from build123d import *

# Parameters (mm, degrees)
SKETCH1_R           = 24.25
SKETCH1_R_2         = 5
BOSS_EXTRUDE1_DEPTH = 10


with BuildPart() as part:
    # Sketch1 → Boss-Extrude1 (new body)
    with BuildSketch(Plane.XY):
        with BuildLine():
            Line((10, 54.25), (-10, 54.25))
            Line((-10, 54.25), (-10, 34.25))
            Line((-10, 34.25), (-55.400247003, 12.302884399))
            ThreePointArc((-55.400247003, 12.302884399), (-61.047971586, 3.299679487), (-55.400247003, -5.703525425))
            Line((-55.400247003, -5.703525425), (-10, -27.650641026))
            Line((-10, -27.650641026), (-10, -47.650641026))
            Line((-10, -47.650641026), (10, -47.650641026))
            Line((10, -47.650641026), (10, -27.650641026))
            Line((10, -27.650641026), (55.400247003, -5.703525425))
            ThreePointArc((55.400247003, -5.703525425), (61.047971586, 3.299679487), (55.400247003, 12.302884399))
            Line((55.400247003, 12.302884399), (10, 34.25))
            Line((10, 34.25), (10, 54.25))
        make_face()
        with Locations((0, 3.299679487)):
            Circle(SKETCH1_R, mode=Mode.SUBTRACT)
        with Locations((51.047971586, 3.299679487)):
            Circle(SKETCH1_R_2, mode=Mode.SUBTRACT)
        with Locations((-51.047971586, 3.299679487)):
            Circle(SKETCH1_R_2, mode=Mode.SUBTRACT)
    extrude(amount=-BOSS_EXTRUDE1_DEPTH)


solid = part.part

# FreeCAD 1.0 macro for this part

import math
import FreeCAD as App
import Part
import Sketcher
Q = App.Units.Quantity

doc = App.newDocument("Part")
body = doc.addObject("PartDesign::Body", "Body")

# Sketch on XY plane
sketch1 = body.newObject("Sketcher::SketchObject", "Sketch")
sketch1.AttachmentSupport = (doc.getObject("XY_Plane"), [""])
sketch1.MapMode = "FlatFace"
sketch1.addGeometry([
    Part.LineSegment(App.Vector(10, 54, 0), App.Vector(-10, 54, 0)),  # 0
    Part.LineSegment(App.Vector(-10, 54, 0), App.Vector(-10, 34, 0)),  # 1
    Part.LineSegment(App.Vector(-10, 34, 0), App.Vector(-55, 12, 0)),  # 2
    Part.ArcOfCircle(Part.Circle(App.Vector(-51, 3, 0), App.Vector(0, 0, 1), 10), math.radians(116), math.radians(244)),  # 3
    Part.LineSegment(App.Vector(-55, -6, 0), App.Vector(-10, -28, 0)),  # 4
    Part.LineSegment(App.Vector(-10, -28, 0), App.Vector(-10, -48, 0)),  # 5
    Part.LineSegment(App.Vector(-10, -48, 0), App.Vector(10, -48, 0)),  # 6
    Part.LineSegment(App.Vector(10, -48, 0), App.Vector(10, -28, 0)),  # 7
    Part.LineSegment(App.Vector(10, -28, 0), App.Vector(55, -6, 0)),  # 8
    Part.ArcOfCircle(Part.Circle(App.Vector(51, 3, 0), App.Vector(0, 0, 1), 10), math.radians(-64), math.radians(64)),  # 9
    Part.LineSegment(App.Vector(55, 12, 0), App.Vector(10, 34, 0)),  # 10
    Part.LineSegment(App.Vector(10, 34, 0), App.Vector(10, 54, 0)),  # 11
    Part.Circle(App.Vector(-51, 3, 0), App.Vector(0, 0, 1), 5),  # 12
    Part.Circle(App.Vector(0, 3, 0), App.Vector(0, 0, 1), 24),  # 13
    Part.Circle(App.Vector(51, 3, 0), App.Vector(0, 0, 1), 5),  # 14
], False)
sketch1.addConstraint([
    Sketcher.Constraint("Coincident", 0, 2, 1, 1),
    Sketcher.Constraint("Coincident", 1, 2, 2, 1),
    Sketcher.Constraint("Tangent", 2, 2, 3, 1),
    Sketcher.Constraint("Tangent", 3, 2, 4, 1),
    Sketcher.Constraint("Coincident", 4, 2, 5, 1),
    Sketcher.Constraint("Coincident", 5, 2, 6, 1),
    Sketcher.Constraint("Coincident", 6, 2, 7, 1),
    Sketcher.Constraint("Coincident", 7, 2, 8, 1),
    Sketcher.Constraint("Tangent", 8, 2, 9, 1),
    Sketcher.Constraint("Tangent", 9, 2, 10, 1),
    Sketcher.Constraint("Coincident", 10, 2, 11, 1),
    Sketcher.Constraint("Coincident", 11, 2, 0, 1),
    Sketcher.Constraint("Horizontal", 0),
    Sketcher.Constraint("Vertical", 1),
    Sketcher.Constraint("Vertical", 5),
    Sketcher.Constraint("Horizontal", 6),
    Sketcher.Constraint("Vertical", 7),
    Sketcher.Constraint("Vertical", 11),
    Sketcher.Constraint("Coincident", 12, 3, 3, 3),
    Sketcher.Constraint("Coincident", 14, 3, 9, 3),
    Sketcher.Constraint("Equal", 3, 9),
    Sketcher.Constraint("Equal", 12, 14),
    Sketcher.Constraint("Symmetric", 3, 3, 9, 3, -2),
    Sketcher.Constraint("Symmetric", 4, 2, 7, 2, -2),
    Sketcher.Constraint("Symmetric", 1, 2, 10, 2, -2),
    Sketcher.Constraint("PointOnObject", 13, 3, -2),
    Sketcher.Constraint("Parallel", 2, 8),
    Sketcher.Constraint("Horizontal", 12, 3, 13, 3),
    Sketcher.Constraint("Vertical", 1, 2, 4, 2),
    Sketcher.Constraint("Equal", 6, 1),
    Sketcher.Constraint("Equal", 1, 5),
    Sketcher.Constraint("Diameter", 12, Q("10 mm")),
    Sketcher.Constraint("Radius", 3, Q("10 mm")),
    Sketcher.Constraint("Diameter", 13, Q("48.5 mm")),
    Sketcher.Constraint("DistanceX", 0, 2, 0, 1, Q("20 mm")),
    Sketcher.Constraint("DistanceY", -1, 1, 0, 2, Q("54.25 mm")),
    Sketcher.Constraint("Distance", 2, Q("50.426762 mm")),
    Sketcher.Constraint("DistanceX", 3, 3, -1, 1, Q("51.047972 mm")),
])
pad1 = body.newObject("PartDesign::Pad", "Pad")
pad1.Profile = sketch1
pad1.Length = 10
pad1.Reversed = True

doc.recompute()
